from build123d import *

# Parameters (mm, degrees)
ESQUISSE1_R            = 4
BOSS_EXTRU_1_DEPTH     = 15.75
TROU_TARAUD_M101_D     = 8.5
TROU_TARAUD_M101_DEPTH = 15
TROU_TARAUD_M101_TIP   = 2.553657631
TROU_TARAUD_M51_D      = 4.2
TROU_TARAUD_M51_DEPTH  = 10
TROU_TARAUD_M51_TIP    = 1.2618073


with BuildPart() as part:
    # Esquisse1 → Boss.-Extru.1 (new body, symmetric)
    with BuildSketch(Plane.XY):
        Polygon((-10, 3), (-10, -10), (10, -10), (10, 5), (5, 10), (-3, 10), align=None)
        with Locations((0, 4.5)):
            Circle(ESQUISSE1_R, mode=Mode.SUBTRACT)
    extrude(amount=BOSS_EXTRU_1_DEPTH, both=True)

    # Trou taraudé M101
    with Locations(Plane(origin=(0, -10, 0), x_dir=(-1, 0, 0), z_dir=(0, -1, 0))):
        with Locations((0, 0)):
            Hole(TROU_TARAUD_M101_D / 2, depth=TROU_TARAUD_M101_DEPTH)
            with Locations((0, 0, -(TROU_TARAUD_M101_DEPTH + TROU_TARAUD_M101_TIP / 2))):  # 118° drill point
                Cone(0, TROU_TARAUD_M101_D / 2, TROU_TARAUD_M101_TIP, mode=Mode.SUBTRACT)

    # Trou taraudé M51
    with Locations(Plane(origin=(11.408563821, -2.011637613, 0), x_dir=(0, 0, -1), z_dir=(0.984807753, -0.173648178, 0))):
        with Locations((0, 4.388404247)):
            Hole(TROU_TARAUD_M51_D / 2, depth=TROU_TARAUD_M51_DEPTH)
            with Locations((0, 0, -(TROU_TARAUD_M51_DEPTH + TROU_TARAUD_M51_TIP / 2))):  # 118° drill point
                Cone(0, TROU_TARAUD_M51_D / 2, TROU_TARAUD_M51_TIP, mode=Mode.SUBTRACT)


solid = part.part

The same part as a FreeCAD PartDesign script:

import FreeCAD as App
import Part
import Sketcher

V = App.Vector
Q = App.Units.Quantity

doc = App.newDocument("Part")
params = doc.addObject("Spreadsheet::Sheet", "Params")
for row, (alias, value) in enumerate([
    ("sketch1_diameter", "8 mm"),
    ("sketch1_width", "20 mm"),
    ("sketch1_width2", "8 mm"),
    ("sketch1_height", "13 mm"),
    ("sketch1_height2", "15 mm"),
    ("pad1_length", "31.5 mm"),
    ("sketch2_diameter", "8.5 mm"),
    ("hole_diameter", "8.5 mm"),
    ("hole_depth", "15 mm"),
    ("sketch3_diameter", "4.2 mm"),
    ("hole2_diameter", "4.2 mm"),
    ("hole2_depth", "10 mm"),
], start=1):
    params.set(f"A{row}", alias)
    params.set(f"B{row}", "=" + value)
    params.setAlias(f"B{row}", alias)

body = doc.addObject("PartDesign::Body", "Body")

# Sketch on XY plane
sketch1 = body.newObject("Sketcher::SketchObject", "Sketch")
sketch1.AttachmentSupport = (doc.getObject("XY_Plane"), [""])
sketch1.MapMode = "FlatFace"
sketch1.addGeometry(Part.LineSegment(V(-10, 3, 0), V(-10, -10, 0)), False)
sketch1.addGeometry(Part.LineSegment(V(-10, -10, 0), V(10, -10, 0)), False)
sketch1.addGeometry(Part.LineSegment(V(10, -10, 0), V(10, 5, 0)), False)
sketch1.addGeometry(Part.LineSegment(V(10, 5, 0), V(5, 10, 0)), False)
sketch1.addGeometry(Part.LineSegment(V(5, 10, 0), V(-3, 10, 0)), False)
sketch1.addGeometry(Part.LineSegment(V(-3, 10, 0), V(-10, 3, 0)), False)
sketch1.addGeometry(Part.Circle(V(0, 4.5, 0), V(0, 0, 1), 4), False)
sketch1.addConstraint(Sketcher.Constraint("Coincident", 0, 2, 1, 1))
sketch1.addConstraint(Sketcher.Constraint("Coincident", 1, 2, 2, 1))
sketch1.addConstraint(Sketcher.Constraint("Coincident", 2, 2, 3, 1))
sketch1.addConstraint(Sketcher.Constraint("Coincident", 3, 2, 4, 1))
sketch1.addConstraint(Sketcher.Constraint("Coincident", 4, 2, 5, 1))
sketch1.addConstraint(Sketcher.Constraint("Coincident", 5, 2, 0, 1))
sketch1.addConstraint(Sketcher.Constraint("Vertical", 0))
sketch1.addConstraint(Sketcher.Constraint("Horizontal", 1))
sketch1.addConstraint(Sketcher.Constraint("Vertical", 2))
sketch1.addConstraint(Sketcher.Constraint("Horizontal", 4))
sketch1.addConstraint(Sketcher.Constraint("PointOnObject", 6, 3, -2))
sketch1.addConstraint(Sketcher.Constraint("Perpendicular", 3, 5))
sketch1.addConstraint(Sketcher.Constraint("Diameter", 6, 8.0))
sketch1.addConstraint(Sketcher.Constraint("DistanceX", 1, 1, 1, 2, 20.0))
sketch1.addConstraint(Sketcher.Constraint("DistanceX", 4, 2, 4, 1, 8.0))
sketch1.addConstraint(Sketcher.Constraint("DistanceY", 0, 2, 0, 1, 13.0))
sketch1.addConstraint(Sketcher.Constraint("DistanceY", 2, 1, 2, 2, 15.0))
sketch1.addConstraint(Sketcher.Constraint("Angle", 3, Q("135 deg")))
sketch1.addConstraint(Sketcher.Constraint("DistanceX", 0, 2, -1, 1, 10.0))
sketch1.addConstraint(Sketcher.Constraint("DistanceY", 0, 2, -1, 1, 10.0))
sketch1.addConstraint(Sketcher.Constraint("DistanceY", -1, 1, 6, 3, 4.5))
sketch1.setExpression("Constraints[12]", "Params.sketch1_diameter")
sketch1.setExpression("Constraints[13]", "Params.sketch1_width")
sketch1.setExpression("Constraints[14]", "Params.sketch1_width2")
sketch1.setExpression("Constraints[15]", "Params.sketch1_height")
sketch1.setExpression("Constraints[16]", "Params.sketch1_height2")
pad1 = body.newObject("PartDesign::Pad", "Pad")
pad1.Profile = sketch1
pad1.setExpression("Length", "Params.pad1_length")
pad1.Midplane = True

# Sketch on XZ plane
sketch2 = body.newObject("Sketcher::SketchObject", "Sketch001")
sketch2.AttachmentSupport = (doc.getObject("XZ_Plane"), [""])
sketch2.MapMode = "FlatFace"
sketch2.AttachmentOffset = App.Placement(V(0, 0, 10), App.Rotation())
sketch2.addGeometry(Part.Circle(V(0, 0, 0), V(0, 0, 1), 4.25), False)
sketch2.addConstraint(Sketcher.Constraint("Coincident", 0, 3, -1, 1))
sketch2.addConstraint(Sketcher.Constraint("Diameter", 0, 8.5))
sketch2.setExpression("Constraints[1]", "Params.sketch2_diameter")
doc.recompute()
hole = body.newObject("PartDesign::Hole", "Hole")
hole.Profile = sketch2
hole.ThreadType = "None"
hole.setExpression("Diameter", "Params.hole_diameter")
hole.DepthType = "Dimension"
hole.setExpression("Depth", "Params.hole_depth")
hole.DrillPoint = "Angled"
hole.DrillPointAngle = 118

# Sketch on an angled plane
sketch3 = body.newObject("Sketcher::SketchObject", "Sketch002")
sketch3.Placement = App.Placement(V(11.408564, -2.011638, 0), App.Rotation(V(0, 0, -1), V(0.173648178, 0.984807753, 0), V(0.984807753, -0.173648178, 0), "ZXY"))
sketch3.addGeometry(Part.Circle(V(0, 4.388404, 0), V(0, 0, 1), 2.1), False)
sketch3.addConstraint(Sketcher.Constraint("PointOnObject", 0, 3, -2))
sketch3.addConstraint(Sketcher.Constraint("Diameter", 0, 4.2))
sketch3.addConstraint(Sketcher.Constraint("DistanceY", -1, 1, 0, 3, 4.388404))
sketch3.setExpression("Constraints[1]", "Params.sketch3_diameter")
doc.recompute()
hole2 = body.newObject("PartDesign::Hole", "Hole001")
hole2.Profile = sketch3
hole2.ThreadType = "None"
hole2.setExpression("Diameter", "Params.hole2_diameter")
hole2.DepthType = "Dimension"
hole2.setExpression("Depth", "Params.hole2_depth")
hole2.DrillPoint = "Angled"
hole2.DrillPointAngle = 118

doc.recompute()
